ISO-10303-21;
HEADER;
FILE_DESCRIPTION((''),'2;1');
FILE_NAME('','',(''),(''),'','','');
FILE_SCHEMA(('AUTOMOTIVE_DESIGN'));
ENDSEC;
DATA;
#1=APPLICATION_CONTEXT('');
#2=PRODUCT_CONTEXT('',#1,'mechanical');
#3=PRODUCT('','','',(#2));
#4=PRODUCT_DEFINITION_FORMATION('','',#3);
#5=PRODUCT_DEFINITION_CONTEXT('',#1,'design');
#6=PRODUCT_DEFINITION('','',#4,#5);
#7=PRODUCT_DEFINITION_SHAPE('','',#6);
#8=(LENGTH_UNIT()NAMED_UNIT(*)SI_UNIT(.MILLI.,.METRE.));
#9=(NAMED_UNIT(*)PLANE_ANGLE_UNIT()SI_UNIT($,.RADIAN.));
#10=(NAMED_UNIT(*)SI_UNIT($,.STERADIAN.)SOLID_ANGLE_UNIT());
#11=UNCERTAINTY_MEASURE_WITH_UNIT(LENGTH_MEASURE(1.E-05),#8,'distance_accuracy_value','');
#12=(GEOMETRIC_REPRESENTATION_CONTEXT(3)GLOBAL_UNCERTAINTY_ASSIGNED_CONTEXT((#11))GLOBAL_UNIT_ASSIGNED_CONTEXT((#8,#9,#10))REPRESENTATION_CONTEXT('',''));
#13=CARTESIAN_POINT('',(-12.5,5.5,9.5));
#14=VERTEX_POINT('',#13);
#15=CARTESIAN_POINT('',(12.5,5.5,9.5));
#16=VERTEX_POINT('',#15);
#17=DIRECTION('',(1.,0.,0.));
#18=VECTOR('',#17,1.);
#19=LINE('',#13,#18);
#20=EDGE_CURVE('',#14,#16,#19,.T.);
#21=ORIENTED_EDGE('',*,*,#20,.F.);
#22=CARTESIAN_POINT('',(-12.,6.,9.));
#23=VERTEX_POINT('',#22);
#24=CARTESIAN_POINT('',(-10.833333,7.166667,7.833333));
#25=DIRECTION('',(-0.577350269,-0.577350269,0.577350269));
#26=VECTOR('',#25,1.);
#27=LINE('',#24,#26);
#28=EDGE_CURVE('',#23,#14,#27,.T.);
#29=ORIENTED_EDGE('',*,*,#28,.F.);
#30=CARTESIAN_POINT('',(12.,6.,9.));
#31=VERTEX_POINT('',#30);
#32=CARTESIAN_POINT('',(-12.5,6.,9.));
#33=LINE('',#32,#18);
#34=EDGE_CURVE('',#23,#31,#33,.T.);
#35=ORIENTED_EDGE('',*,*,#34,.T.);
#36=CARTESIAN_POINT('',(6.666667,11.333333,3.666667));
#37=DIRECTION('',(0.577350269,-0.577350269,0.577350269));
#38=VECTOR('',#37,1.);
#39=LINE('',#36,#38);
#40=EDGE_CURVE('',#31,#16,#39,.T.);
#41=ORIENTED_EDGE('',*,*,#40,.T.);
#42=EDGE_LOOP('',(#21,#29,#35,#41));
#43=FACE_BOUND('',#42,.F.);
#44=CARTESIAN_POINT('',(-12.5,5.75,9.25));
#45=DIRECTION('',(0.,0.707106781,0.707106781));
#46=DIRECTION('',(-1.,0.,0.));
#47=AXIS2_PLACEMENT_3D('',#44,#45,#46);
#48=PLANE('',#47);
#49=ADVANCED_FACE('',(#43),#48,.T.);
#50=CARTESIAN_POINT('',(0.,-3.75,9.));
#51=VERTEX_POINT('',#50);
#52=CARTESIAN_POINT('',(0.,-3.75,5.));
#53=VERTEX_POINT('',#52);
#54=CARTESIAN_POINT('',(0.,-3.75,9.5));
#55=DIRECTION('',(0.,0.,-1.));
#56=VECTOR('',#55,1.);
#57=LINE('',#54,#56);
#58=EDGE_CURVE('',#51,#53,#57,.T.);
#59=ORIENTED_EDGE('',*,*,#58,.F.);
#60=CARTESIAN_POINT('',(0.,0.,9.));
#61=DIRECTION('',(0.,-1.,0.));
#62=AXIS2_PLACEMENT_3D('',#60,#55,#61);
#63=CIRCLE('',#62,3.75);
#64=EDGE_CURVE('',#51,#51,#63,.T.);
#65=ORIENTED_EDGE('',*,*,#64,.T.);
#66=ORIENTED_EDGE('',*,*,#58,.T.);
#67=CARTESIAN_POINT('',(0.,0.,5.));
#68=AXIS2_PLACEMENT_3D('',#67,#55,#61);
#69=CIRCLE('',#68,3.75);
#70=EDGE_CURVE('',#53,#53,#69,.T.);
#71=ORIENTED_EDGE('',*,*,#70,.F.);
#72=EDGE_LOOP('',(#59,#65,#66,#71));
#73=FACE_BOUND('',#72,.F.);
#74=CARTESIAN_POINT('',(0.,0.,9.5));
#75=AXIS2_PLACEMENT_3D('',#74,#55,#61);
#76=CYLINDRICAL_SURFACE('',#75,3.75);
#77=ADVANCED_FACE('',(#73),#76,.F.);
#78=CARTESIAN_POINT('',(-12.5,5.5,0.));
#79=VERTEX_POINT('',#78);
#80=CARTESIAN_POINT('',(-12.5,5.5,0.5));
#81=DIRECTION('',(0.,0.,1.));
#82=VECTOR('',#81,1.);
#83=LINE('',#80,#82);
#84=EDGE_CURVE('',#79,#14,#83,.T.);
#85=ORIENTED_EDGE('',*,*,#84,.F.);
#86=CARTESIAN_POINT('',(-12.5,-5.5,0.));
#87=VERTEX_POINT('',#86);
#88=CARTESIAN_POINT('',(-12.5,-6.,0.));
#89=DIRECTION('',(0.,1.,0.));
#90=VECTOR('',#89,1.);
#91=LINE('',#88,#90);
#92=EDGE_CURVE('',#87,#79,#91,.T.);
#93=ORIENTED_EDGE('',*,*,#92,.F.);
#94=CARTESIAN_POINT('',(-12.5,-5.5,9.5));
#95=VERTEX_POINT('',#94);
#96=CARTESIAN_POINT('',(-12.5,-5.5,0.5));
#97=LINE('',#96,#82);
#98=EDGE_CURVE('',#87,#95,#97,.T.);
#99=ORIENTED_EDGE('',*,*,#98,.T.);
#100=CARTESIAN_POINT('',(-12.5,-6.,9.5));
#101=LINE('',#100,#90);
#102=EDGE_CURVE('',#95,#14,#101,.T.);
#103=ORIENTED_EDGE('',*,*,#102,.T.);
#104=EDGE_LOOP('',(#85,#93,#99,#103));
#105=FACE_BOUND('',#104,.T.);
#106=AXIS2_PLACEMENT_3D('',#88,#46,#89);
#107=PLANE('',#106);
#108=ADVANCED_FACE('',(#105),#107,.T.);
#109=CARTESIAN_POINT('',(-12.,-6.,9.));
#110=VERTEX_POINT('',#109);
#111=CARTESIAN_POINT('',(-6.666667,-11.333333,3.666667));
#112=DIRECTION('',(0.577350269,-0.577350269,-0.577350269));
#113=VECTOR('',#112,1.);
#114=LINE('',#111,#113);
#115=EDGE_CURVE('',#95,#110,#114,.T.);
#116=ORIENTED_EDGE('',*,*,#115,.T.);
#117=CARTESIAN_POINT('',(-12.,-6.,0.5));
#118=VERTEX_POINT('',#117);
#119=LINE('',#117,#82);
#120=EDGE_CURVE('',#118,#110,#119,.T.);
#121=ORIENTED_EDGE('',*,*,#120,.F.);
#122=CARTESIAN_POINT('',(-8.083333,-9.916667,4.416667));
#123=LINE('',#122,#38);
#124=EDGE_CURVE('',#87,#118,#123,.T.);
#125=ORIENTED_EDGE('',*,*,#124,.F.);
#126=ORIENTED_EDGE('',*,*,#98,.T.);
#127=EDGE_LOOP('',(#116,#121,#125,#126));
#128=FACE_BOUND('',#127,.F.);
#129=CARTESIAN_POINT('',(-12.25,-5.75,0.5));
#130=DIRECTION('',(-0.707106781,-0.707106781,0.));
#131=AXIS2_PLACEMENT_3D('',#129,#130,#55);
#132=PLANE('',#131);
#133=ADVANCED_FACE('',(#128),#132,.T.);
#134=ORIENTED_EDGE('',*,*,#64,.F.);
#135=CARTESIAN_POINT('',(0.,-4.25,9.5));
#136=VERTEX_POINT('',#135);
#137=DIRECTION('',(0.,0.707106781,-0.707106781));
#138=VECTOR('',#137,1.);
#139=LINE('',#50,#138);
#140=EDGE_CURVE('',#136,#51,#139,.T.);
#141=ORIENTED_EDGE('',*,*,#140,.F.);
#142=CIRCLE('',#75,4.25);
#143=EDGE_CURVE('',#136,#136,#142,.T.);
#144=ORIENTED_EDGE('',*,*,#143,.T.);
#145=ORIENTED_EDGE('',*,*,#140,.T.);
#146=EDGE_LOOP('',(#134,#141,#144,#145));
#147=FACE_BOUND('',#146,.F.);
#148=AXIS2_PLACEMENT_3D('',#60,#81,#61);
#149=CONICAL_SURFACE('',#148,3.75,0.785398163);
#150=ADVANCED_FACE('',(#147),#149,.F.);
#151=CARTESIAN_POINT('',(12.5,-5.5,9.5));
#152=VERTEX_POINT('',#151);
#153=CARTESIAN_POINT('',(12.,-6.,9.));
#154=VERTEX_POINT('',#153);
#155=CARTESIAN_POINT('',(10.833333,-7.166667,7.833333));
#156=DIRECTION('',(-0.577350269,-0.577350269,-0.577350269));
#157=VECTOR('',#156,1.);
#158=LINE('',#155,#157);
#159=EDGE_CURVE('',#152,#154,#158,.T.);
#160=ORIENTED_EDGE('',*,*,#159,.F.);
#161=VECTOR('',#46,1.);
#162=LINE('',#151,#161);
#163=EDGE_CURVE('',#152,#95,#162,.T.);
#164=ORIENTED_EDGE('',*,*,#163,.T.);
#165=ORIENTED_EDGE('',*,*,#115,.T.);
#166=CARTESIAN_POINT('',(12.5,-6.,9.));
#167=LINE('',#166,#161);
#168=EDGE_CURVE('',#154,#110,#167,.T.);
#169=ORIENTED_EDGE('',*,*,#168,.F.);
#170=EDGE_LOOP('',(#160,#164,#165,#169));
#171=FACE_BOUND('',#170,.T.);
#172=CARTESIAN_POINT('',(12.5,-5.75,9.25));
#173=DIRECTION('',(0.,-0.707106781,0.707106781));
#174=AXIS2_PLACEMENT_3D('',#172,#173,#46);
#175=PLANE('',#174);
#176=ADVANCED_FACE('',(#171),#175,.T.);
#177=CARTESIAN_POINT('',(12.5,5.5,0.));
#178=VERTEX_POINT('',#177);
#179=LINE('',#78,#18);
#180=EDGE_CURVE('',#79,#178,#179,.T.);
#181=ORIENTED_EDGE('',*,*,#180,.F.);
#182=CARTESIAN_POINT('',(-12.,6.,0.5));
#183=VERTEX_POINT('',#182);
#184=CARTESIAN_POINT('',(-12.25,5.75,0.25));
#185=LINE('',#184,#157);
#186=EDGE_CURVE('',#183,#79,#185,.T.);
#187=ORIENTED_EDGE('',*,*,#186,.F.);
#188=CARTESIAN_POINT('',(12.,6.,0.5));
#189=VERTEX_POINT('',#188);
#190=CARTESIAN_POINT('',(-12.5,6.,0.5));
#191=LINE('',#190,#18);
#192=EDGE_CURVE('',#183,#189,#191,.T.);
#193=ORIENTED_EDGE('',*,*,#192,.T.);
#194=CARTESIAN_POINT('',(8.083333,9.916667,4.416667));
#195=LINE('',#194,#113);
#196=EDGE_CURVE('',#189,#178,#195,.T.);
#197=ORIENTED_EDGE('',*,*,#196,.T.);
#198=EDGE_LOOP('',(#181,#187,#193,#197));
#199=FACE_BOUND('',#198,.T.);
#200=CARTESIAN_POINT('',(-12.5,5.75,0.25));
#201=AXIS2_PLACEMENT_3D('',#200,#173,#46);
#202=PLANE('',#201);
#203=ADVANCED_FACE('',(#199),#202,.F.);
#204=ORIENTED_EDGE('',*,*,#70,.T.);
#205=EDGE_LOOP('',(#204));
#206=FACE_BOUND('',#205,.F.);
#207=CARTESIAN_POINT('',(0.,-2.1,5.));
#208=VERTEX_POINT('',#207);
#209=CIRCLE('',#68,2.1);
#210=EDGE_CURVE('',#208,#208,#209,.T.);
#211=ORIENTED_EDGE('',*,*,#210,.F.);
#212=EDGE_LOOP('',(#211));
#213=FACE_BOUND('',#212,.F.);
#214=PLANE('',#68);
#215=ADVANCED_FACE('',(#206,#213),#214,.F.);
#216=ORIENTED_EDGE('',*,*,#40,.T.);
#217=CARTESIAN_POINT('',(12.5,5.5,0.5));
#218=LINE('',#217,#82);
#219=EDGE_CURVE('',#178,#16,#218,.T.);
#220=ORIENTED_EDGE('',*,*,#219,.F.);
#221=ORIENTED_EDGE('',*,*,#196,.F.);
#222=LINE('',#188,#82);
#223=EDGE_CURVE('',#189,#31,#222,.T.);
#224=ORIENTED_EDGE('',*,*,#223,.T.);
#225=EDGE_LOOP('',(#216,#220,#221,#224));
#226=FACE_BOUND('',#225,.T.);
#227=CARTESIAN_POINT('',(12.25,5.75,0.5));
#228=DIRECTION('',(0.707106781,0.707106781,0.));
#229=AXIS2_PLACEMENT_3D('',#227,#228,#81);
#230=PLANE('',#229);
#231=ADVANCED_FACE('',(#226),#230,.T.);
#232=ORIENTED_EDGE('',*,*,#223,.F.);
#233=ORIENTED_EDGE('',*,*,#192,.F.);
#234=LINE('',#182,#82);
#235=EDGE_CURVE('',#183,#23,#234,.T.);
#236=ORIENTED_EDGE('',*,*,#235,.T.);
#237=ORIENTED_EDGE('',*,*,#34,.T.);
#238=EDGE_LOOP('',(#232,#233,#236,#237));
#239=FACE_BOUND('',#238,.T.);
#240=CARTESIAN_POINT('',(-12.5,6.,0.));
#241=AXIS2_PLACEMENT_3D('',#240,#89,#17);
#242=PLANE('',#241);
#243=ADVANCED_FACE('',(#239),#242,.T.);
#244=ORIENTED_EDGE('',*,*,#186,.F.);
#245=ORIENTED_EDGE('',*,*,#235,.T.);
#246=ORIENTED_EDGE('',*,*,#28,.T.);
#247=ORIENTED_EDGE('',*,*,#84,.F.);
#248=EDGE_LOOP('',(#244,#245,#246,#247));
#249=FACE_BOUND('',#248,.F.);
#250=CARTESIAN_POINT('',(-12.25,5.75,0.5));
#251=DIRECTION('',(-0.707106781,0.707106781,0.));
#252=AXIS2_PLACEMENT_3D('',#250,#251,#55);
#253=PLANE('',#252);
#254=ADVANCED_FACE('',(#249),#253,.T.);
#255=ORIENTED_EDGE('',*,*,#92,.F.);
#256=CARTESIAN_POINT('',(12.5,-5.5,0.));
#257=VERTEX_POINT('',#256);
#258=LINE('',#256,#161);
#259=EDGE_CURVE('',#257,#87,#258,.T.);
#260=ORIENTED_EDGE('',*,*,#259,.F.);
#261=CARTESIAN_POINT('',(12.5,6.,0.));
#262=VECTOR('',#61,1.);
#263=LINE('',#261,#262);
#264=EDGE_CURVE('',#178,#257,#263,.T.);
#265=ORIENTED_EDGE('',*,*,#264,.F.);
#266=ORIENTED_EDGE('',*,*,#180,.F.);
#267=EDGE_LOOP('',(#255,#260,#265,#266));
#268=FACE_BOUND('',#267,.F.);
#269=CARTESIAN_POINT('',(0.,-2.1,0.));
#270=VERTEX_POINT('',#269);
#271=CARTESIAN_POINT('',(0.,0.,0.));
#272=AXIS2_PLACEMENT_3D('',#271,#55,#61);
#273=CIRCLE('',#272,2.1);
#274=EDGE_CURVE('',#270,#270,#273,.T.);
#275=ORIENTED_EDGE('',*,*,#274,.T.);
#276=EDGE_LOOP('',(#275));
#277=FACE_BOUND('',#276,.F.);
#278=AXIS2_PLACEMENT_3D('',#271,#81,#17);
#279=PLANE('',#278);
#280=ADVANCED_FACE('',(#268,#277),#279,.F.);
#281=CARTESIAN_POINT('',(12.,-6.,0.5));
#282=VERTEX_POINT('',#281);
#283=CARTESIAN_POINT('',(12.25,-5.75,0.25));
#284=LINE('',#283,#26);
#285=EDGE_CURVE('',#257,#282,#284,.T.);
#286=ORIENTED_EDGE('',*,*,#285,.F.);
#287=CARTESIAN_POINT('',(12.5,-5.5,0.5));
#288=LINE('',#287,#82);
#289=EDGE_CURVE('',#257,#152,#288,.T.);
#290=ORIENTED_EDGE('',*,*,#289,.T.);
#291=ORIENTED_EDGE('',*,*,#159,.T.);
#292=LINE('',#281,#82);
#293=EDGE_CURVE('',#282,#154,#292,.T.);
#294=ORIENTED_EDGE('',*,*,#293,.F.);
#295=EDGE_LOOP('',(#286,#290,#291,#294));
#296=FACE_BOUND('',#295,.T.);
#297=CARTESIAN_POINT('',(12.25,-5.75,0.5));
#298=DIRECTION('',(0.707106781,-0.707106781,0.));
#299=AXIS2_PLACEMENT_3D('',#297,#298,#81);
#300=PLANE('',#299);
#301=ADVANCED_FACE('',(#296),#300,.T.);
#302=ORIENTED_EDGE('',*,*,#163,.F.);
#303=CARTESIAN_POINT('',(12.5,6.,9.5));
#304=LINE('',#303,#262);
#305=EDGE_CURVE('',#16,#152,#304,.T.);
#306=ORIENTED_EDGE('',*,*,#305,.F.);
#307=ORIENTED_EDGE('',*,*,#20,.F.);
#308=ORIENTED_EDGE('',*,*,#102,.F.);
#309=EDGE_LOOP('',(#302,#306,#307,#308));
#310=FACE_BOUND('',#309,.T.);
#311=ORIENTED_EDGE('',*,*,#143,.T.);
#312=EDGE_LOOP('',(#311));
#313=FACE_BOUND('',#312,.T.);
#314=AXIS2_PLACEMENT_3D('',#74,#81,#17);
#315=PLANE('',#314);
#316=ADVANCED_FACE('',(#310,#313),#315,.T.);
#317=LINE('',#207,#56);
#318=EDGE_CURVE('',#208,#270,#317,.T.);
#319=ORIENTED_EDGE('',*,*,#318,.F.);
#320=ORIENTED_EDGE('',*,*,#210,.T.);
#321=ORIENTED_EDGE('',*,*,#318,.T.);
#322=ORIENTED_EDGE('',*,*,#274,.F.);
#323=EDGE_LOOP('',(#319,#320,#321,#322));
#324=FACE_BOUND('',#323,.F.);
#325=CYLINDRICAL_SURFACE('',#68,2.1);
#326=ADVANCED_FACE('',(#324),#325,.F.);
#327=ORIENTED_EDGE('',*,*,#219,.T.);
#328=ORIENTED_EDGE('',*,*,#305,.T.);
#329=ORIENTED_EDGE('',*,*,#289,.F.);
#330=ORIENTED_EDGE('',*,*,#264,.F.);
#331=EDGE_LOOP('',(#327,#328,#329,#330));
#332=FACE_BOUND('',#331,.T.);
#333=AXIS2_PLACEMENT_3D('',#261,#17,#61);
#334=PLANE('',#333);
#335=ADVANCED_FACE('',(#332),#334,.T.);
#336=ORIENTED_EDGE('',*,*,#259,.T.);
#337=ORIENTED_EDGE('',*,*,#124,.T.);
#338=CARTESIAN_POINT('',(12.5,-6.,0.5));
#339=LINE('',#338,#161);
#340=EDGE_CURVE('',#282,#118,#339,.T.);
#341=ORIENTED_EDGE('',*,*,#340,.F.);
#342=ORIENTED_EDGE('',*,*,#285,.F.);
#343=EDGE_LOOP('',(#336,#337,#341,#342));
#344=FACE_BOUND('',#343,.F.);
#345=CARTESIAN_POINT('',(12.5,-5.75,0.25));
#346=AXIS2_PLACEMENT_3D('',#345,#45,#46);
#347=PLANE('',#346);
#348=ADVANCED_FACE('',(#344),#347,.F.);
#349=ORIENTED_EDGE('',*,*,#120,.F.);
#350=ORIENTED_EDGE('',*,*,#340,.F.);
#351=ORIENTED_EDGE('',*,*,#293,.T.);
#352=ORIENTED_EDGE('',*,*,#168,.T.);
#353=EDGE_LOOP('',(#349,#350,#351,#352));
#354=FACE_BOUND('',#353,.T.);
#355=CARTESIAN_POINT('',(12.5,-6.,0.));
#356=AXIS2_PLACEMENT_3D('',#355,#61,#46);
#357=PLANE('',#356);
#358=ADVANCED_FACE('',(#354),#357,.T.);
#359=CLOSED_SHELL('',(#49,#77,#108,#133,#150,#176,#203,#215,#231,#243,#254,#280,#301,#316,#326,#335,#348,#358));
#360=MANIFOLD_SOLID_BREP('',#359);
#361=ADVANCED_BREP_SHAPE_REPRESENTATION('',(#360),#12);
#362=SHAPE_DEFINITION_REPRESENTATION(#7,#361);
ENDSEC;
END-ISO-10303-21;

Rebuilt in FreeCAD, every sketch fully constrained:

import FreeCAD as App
import Part
import Sketcher
Q = App.Units.Quantity


def edges_at(feature, points):
    """Names of the edges that pass closest to the given points."""
    edges = feature.Shape.Edges
    near = lambda p: min(range(len(edges)), key=lambda i: edges[i].distToShape(Part.Vertex(*p))[0])
    return sorted({f"Edge{near(p) + 1}" for p in points})


def add_polygon(sketch, points):
    """Adds a closed chain of lines whose ends are joined by coincident constraints."""
    first, n = sketch.GeometryCount, len(points)
    for a, b in zip(points, points[1:] + points[:1]):
        sketch.addGeometry(Part.LineSegment(App.Vector(*a, 0), App.Vector(*b, 0)), False)
    for i in range(n):
        sketch.addConstraint(Sketcher.Constraint("Coincident", first + i, 2, first + (i + 1) % n, 1))

doc = App.newDocument("Part")
body = doc.addObject("PartDesign::Body", "Body")

sketch1 = body.newObject("Sketcher::SketchObject", "Sketch")
sketch1.AttachmentSupport = (doc.getObject("XY_Plane"), [""])
sketch1.MapMode = "FlatFace"
add_polygon(sketch1, [(12.5, 6), (-12.5, 6), (-12.5, -6), (12.5, -6)])
sketch1.addConstraint(Sketcher.Constraint("Horizontal", 0))
sketch1.addConstraint(Sketcher.Constraint("Vertical", 1))
sketch1.addConstraint(Sketcher.Constraint("Horizontal", 2))
sketch1.addConstraint(Sketcher.Constraint("Vertical", 3))
sketch1.addConstraint(Sketcher.Constraint("Symmetric", 0, 2, 2, 2, -1, 1))
sketch1.addConstraint(Sketcher.Constraint("DistanceX", 0, 2, 0, 1, Q("25 mm")))
sketch1.addConstraint(Sketcher.Constraint("DistanceY", 1, 2, 1, 1, Q("12 mm")))
pad1 = body.newObject("PartDesign::Pad", "Pad")
pad1.Profile = sketch1
pad1.Length = 9.5

sketch2 = body.newObject("Sketcher::SketchObject", "Sketch001")
sketch2.AttachmentSupport = (doc.getObject("XY_Plane"), [""])
sketch2.MapMode = "FlatFace"
sketch2.AttachmentOffset = App.Placement(App.Vector(0, 0, 9.5), App.Rotation())
sketch2.addGeometry(Part.Circle(App.Vector(0, 0, 0), App.Vector(0, 0, 1), 2.1), False)
sketch2.addConstraint(Sketcher.Constraint("Coincident", 0, 3, -1, 1))
sketch2.addConstraint(Sketcher.Constraint("Diameter", 0, Q("4.2 mm")))
doc.recompute()
hole = body.newObject("PartDesign::Hole", "Hole")
hole.Profile = sketch2
hole.ThreadType = "None"
hole.Diameter = 4.2
hole.DepthType = "ThroughAll"
hole.HoleCutType = "Counterbore"
hole.HoleCutDiameter = 7.5
hole.HoleCutDepth = 4.5
doc.recompute()

chamfer = body.newObject("PartDesign::Chamfer", "Chamfer")
chamfer.Base = (hole, edges_at(hole, [
    (0, -6, 9.5),
    (0, 6, 9.5),
    (0, -6, 0),
    (0, 6, 0),
]))
chamfer.Size = 0.5
doc.recompute()

chamfer2 = body.newObject("PartDesign::Chamfer", "Chamfer001")
chamfer2.Base = (chamfer, edges_at(chamfer, [
    (12.5, 6, 4.75),
    (-12.5, 6, 4.75),
    (-12.5, -6, 4.75),
    (12.5, -6, 4.75),
]))
chamfer2.Size = 0.5
doc.recompute()

chamfer3 = body.newObject("PartDesign::Chamfer", "Chamfer002")
chamfer3.Base = (chamfer2, edges_at(chamfer2, [(0, 3.75, 9.5)]))
chamfer3.Size = 0.5

doc.recompute()
